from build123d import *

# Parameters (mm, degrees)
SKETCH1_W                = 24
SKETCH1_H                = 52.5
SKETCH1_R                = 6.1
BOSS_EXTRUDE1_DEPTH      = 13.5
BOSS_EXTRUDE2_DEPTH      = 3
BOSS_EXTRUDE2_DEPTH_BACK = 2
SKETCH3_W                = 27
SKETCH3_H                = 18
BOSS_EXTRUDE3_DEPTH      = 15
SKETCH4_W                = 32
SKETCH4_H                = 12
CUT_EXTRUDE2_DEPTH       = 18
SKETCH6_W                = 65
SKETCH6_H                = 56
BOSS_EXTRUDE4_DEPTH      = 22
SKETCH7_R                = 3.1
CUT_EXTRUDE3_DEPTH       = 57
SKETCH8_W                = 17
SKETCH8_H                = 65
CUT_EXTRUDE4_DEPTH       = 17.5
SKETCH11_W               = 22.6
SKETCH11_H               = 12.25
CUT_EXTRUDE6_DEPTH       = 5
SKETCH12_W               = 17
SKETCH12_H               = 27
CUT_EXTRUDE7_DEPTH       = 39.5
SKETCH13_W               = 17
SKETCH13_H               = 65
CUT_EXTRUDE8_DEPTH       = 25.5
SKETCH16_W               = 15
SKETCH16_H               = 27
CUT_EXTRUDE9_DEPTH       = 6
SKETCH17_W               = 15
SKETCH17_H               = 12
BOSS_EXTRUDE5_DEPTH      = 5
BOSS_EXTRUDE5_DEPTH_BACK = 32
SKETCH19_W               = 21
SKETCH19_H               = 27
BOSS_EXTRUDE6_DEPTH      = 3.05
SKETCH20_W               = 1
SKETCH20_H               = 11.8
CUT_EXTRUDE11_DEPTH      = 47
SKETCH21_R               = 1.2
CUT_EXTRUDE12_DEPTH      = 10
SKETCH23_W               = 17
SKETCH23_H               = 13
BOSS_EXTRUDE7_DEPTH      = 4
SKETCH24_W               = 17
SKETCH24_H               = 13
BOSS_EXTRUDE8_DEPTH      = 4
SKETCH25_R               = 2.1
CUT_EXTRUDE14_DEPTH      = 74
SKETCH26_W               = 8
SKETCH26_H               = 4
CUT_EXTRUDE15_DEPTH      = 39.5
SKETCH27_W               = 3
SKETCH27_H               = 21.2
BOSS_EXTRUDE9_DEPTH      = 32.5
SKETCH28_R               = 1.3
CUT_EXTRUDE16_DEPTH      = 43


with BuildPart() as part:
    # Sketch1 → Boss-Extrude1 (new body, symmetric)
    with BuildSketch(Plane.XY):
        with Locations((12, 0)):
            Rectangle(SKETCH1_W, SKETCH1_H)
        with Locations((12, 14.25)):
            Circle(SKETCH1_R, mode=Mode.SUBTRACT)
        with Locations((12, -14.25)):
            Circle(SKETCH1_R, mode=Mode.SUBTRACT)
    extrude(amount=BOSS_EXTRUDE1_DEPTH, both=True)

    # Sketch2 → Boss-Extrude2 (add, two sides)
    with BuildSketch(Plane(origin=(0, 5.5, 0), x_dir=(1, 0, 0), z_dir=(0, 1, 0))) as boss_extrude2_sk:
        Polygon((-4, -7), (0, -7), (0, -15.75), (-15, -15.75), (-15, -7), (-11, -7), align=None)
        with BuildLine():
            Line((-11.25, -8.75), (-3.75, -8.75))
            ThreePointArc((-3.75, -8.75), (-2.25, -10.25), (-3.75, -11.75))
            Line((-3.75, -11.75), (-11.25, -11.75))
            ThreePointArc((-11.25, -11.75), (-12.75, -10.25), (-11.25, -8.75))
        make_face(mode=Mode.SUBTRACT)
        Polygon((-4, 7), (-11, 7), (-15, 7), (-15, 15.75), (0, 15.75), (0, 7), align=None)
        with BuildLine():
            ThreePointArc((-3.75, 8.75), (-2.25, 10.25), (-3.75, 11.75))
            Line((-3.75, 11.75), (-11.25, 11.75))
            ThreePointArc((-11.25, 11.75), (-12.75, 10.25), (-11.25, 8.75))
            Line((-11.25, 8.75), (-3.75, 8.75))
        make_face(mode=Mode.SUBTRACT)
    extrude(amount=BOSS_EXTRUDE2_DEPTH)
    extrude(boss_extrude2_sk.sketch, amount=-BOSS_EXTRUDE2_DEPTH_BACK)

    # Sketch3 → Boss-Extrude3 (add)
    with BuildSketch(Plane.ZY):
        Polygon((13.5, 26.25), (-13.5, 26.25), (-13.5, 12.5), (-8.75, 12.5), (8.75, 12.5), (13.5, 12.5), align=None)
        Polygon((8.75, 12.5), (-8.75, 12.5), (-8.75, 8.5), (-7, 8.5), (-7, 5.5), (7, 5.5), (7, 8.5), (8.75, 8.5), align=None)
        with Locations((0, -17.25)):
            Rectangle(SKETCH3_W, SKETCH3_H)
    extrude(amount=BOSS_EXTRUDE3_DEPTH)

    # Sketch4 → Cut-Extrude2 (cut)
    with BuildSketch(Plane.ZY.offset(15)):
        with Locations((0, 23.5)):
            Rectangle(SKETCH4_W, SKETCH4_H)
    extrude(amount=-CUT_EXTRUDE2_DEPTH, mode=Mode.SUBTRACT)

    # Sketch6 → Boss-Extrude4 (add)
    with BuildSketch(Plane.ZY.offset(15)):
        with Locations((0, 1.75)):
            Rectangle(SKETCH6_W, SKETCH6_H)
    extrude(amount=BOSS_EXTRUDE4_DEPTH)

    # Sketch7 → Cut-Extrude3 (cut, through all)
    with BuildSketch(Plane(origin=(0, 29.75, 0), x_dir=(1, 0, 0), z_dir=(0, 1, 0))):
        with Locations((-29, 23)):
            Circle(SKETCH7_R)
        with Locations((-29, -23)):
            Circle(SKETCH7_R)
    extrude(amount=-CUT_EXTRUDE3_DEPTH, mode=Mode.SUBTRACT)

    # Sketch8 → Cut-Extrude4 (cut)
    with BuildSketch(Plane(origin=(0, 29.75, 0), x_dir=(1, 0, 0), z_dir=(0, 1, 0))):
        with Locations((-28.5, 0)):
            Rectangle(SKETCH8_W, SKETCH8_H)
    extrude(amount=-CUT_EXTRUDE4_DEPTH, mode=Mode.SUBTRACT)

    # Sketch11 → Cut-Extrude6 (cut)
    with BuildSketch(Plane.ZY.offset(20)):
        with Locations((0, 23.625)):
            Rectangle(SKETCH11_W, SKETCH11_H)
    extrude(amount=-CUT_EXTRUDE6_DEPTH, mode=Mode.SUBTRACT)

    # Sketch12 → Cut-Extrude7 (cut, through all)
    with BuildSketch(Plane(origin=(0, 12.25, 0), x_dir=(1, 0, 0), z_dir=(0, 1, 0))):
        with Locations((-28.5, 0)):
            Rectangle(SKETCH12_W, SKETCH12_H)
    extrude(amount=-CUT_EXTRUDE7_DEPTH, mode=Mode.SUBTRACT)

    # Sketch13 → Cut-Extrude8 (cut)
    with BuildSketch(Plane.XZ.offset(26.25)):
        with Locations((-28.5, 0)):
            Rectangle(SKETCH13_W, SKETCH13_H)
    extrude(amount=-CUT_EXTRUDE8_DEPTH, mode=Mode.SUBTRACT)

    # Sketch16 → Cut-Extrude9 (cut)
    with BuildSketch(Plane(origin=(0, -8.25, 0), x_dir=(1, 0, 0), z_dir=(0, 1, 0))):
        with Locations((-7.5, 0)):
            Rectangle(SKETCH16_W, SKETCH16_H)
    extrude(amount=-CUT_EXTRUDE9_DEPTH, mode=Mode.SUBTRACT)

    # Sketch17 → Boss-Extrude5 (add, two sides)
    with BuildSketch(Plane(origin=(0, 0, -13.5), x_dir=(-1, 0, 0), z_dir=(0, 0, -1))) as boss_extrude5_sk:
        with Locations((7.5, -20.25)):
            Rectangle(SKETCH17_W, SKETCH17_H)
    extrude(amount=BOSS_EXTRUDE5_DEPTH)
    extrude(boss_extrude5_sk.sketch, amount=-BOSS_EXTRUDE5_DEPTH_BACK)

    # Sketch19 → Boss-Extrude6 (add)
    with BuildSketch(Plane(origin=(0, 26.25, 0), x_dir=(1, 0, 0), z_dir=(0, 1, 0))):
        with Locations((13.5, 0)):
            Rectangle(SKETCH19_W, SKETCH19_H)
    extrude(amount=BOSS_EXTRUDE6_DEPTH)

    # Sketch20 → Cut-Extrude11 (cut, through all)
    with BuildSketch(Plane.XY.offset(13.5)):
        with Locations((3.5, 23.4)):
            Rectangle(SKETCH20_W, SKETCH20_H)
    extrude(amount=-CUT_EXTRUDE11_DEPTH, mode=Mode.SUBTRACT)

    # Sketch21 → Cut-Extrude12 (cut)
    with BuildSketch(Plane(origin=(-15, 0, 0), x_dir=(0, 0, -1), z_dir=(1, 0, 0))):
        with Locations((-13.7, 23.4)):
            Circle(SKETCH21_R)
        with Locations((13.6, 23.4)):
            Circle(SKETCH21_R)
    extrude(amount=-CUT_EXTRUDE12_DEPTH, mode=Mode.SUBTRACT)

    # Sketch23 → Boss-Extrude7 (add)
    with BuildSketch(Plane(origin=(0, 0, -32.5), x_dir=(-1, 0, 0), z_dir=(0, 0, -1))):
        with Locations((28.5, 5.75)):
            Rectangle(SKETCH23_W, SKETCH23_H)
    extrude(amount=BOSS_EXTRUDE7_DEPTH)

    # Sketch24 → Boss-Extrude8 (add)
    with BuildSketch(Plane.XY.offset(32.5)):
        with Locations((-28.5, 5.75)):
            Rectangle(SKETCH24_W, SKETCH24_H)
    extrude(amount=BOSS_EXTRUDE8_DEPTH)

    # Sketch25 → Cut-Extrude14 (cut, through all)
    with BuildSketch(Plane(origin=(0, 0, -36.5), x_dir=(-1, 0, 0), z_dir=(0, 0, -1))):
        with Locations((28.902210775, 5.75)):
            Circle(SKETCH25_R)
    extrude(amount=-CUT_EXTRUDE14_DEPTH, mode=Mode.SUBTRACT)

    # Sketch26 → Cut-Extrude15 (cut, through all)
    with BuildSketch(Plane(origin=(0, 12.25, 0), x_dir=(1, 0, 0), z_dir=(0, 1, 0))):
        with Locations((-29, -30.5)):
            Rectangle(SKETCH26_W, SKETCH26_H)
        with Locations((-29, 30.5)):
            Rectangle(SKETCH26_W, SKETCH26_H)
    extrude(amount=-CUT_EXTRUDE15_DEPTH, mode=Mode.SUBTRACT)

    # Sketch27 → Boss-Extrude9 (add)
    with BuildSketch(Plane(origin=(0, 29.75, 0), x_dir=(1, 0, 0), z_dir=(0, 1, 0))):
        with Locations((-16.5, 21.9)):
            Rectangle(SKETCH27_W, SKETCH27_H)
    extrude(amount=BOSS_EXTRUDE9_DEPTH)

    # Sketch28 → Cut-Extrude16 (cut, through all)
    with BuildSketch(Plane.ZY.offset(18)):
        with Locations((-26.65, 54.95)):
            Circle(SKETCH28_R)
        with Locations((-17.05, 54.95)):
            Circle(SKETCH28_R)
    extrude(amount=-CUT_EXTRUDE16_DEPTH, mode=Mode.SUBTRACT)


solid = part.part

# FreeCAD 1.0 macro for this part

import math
import FreeCAD as App
import Part
import Sketcher

V = App.Vector
Q = App.Units.Quantity


def add_polygon(sketch, points):
    """Adds a closed chain of lines whose ends are joined by coincident constraints."""
    first, n = sketch.GeometryCount, len(points)
    for a, b in zip(points, points[1:] + points[:1]):
        sketch.addGeometry(Part.LineSegment(App.Vector(*a, 0), App.Vector(*b, 0)), False)
    for i in range(n):
        sketch.addConstraint(Sketcher.Constraint("Coincident", first + i, 2, first + (i + 1) % n, 1))

doc = App.newDocument("Part")
body = doc.addObject("PartDesign::Body", "Body")

# Sketch on XY plane
sketch1 = body.newObject("Sketcher::SketchObject", "Sketch")
sketch1.AttachmentSupport = (doc.getObject("XY_Plane"), [""])
sketch1.MapMode = "FlatFace"
add_polygon(sketch1, [(0, 26), (0, -26), (24, -26), (24, 26)])  # lines 0-3
sketch1.addGeometry(Part.Circle(V(12, -14, 0), V(0, 0, 1), 6), False)  # 4
sketch1.addGeometry(Part.Circle(V(12, 14, 0), V(0, 0, 1), 6), False)  # 5
sketch1.addConstraint([
    Sketcher.Constraint("Vertical", 0),
    Sketcher.Constraint("Horizontal", 1),
    Sketcher.Constraint("Vertical", 2),
    Sketcher.Constraint("Horizontal", 3),
    Sketcher.Constraint("Equal", 4, 5),
    Sketcher.Constraint("Symmetric", 0, 2, 3, 2, -1, 1),
    Sketcher.Constraint("Symmetric", 4, 3, 5, 3, -1),
    Sketcher.Constraint("Diameter", 4, Q("12.2 mm")),
    Sketcher.Constraint("DistanceX", 1, 1, 1, 2, Q("24 mm")),
    Sketcher.Constraint("DistanceY", 0, 2, 0, 1, Q("52.5 mm")),
    Sketcher.Constraint("DistanceX", -1, 1, 4, 3, Q("12 mm")),
    Sketcher.Constraint("DistanceY", 0, 2, 4, 3, Q("12 mm")),
])
pad1 = body.newObject("PartDesign::Pad", "Pad")
pad1.Profile = sketch1
pad1.Length = 27
pad1.Midplane = True

# Sketch on XZ plane
sketch2 = body.newObject("Sketcher::SketchObject", "Sketch001")
sketch2.AttachmentSupport = (doc.getObject("XZ_Plane"), [""])
sketch2.MapMode = "FlatFace"
sketch2.AttachmentOffset = App.Placement(V(0, 0, -5.5), App.Rotation())
add_polygon(sketch2, [(0, 7), (-15, 7), (-15, 15.8), (0, 15.8)])  # lines 0-3
sketch2.addGeometry(Part.LineSegment(V(-11.2, 8.8, 0), V(-3.8, 8.8, 0)), False)  # 4
sketch2.addGeometry(Part.ArcOfCircle(Part.Circle(V(-3.8, 10.2, 0), V(0, 0, 1), 1.5), math.radians(-90), math.radians(90)), False)  # 5
sketch2.addGeometry(Part.LineSegment(V(-3.8, 11.8, 0), V(-11.2, 11.8, 0)), False)  # 6
sketch2.addGeometry(Part.ArcOfCircle(Part.Circle(V(-11.2, 10.2, 0), V(0, 0, 1), 1.5), math.radians(90), math.radians(270)), False)  # 7
add_polygon(sketch2, [(-15, -7), (0, -7), (0, -15.8), (-15, -15.8)])  # lines 8-11
sketch2.addGeometry(Part.LineSegment(V(-3.8, -8.8, 0), V(-11.2, -8.8, 0)), False)  # 12
sketch2.addGeometry(Part.ArcOfCircle(Part.Circle(V(-11.2, -10.2, 0), V(0, 0, 1), 1.5), math.radians(90), math.radians(270)), False)  # 13
sketch2.addGeometry(Part.LineSegment(V(-11.2, -11.8, 0), V(-3.8, -11.8, 0)), False)  # 14
sketch2.addGeometry(Part.ArcOfCircle(Part.Circle(V(-3.8, -10.2, 0), V(0, 0, 1), 1.5), math.radians(-90), math.radians(90)), False)  # 15
sketch2.addConstraint([
    Sketcher.Constraint("Tangent", 4, 2, 5, 1),
    Sketcher.Constraint("Tangent", 5, 2, 6, 1),
    Sketcher.Constraint("Tangent", 6, 2, 7, 1),
    Sketcher.Constraint("Tangent", 7, 2, 4, 1),
    Sketcher.Constraint("Tangent", 12, 2, 13, 1),
    Sketcher.Constraint("Tangent", 13, 2, 14, 1),
    Sketcher.Constraint("Tangent", 14, 2, 15, 1),
    Sketcher.Constraint("Tangent", 15, 2, 12, 1),
    Sketcher.Constraint("Horizontal", 0),
    Sketcher.Constraint("Vertical", 1),
    Sketcher.Constraint("Horizontal", 2),
    Sketcher.Constraint("Vertical", 3),
    Sketcher.Constraint("Horizontal", 4),
    Sketcher.Constraint("Horizontal", 6),
    Sketcher.Constraint("Horizontal", 8),
    Sketcher.Constraint("Vertical", 9),
    Sketcher.Constraint("Horizontal", 10),
    Sketcher.Constraint("Vertical", 11),
    Sketcher.Constraint("Horizontal", 12),
    Sketcher.Constraint("Horizontal", 14),
    Sketcher.Constraint("Equal", 7, 13),
    Sketcher.Constraint("Symmetric", 3, 2, 8, 2, -1, 1),
    Sketcher.Constraint("Symmetric", 7, 3, 13, 3, -1),
    Sketcher.Constraint("Symmetric", 2, 2, 9, 2, -1),
    Sketcher.Constraint("Vertical", 5, 3, 15, 3),
    Sketcher.Constraint("Vertical", 1, 2, 10, 2),
    Sketcher.Constraint("Radius", 5, Q("1.5 mm")),
    Sketcher.Constraint("DistanceX", 0, 2, 0, 1, Q("15 mm")),
    Sketcher.Constraint("DistanceX", 4, 1, 4, 2, Q("7.5 mm")),
    Sketcher.Constraint("DistanceY", -1, 1, 0, 2, Q("7 mm")),
    Sketcher.Constraint("DistanceY", 13, 3, 1, 2, Q("26 mm")),
    Sketcher.Constraint("DistanceY", 4, 2, 2, 2, Q("7 mm")),
    Sketcher.Constraint("DistanceX", 5, 3, -1, 1, Q("3.75 mm")),
])
pad2 = body.newObject("PartDesign::Pad", "Pad001")
pad2.Profile = sketch2
pad2.Type = "TwoLengths"
pad2.Length = 3
pad2.Length2 = 2
pad2.Reversed = True

# Sketch on YZ plane
sketch3 = body.newObject("Sketcher::SketchObject", "Sketch002")
sketch3.AttachmentSupport = (doc.getObject("YZ_Plane"), [""])
sketch3.MapMode = "FlatFace"
add_polygon(sketch3, [(26.2, 13.5), (26.2, -13.5), (12.5, -13.5), (12.5, -8.8), (8.5, -8.8), (8.5, -7), (5.5, -7), (5.5, 7), (8.5, 7), (8.5, 8.8), (12.5, 8.8), (12.5, 13.5)])  # lines 0-11
add_polygon(sketch3, [(-8.2, -13.5), (-26.2, -13.5), (-26.2, 13.5), (-8.2, 13.5)])  # lines 12-15
sketch3.addConstraint([
    Sketcher.Constraint("Vertical", 0),
    Sketcher.Constraint("Horizontal", 1),
    Sketcher.Constraint("Vertical", 2),
    Sketcher.Constraint("Horizontal", 3),
    Sketcher.Constraint("Vertical", 4),
    Sketcher.Constraint("Horizontal", 5),
    Sketcher.Constraint("Vertical", 6),
    Sketcher.Constraint("Horizontal", 7),
    Sketcher.Constraint("Vertical", 8),
    Sketcher.Constraint("Horizontal", 9),
    Sketcher.Constraint("Vertical", 10),
    Sketcher.Constraint("Horizontal", 11),
    Sketcher.Constraint("Horizontal", 12),
    Sketcher.Constraint("Vertical", 13),
    Sketcher.Constraint("Horizontal", 14),
    Sketcher.Constraint("Vertical", 15),
    Sketcher.Constraint("Symmetric", 11, 2, 12, 2, -1, 1),
    Sketcher.Constraint("Symmetric", 4, 2, 7, 2, -1),
    Sketcher.Constraint("Symmetric", 2, 2, 9, 2, -1),
    Sketcher.Constraint("Horizontal", 1, 2, 12, 2),
    Sketcher.Constraint("Horizontal", 11, 2, 13, 2),
    Sketcher.Constraint("DistanceX", 3, 2, 3, 1, Q("4 mm")),
    Sketcher.Constraint("DistanceX", 5, 2, 5, 1, Q("3 mm")),
    Sketcher.Constraint("DistanceX", 12, 2, 12, 1, Q("18 mm")),
    Sketcher.Constraint("DistanceY", 0, 2, 0, 1, Q("27 mm")),
    Sketcher.Constraint("DistanceY", 6, 1, 6, 2, Q("14 mm")),
    Sketcher.Constraint("DistanceX", 1, 2, 1, 1, Q("13.75 mm")),
    Sketcher.Constraint("DistanceY", 2, 1, 2, 2, Q("4.75 mm")),
    Sketcher.Constraint("DistanceX", -1, 1, 1, 2, Q("12.5 mm")),
])
pad3 = body.newObject("PartDesign::Pad", "Pad002")
pad3.Profile = sketch3
pad3.Length = 15
pad3.Reversed = True

# Sketch on YZ plane
sketch4 = body.newObject("Sketcher::SketchObject", "Sketch003")
sketch4.AttachmentSupport = (doc.getObject("YZ_Plane"), [""])
sketch4.MapMode = "FlatFace"
sketch4.AttachmentOffset = App.Placement(V(0, 0, -15), App.Rotation())
add_polygon(sketch4, [(30, -16), (18, -16), (18, 16), (30, 16)])  # lines 0-3
sketch4.addConstraint([
    Sketcher.Constraint("Horizontal", 0),
    Sketcher.Constraint("Vertical", 1),
    Sketcher.Constraint("Horizontal", 2),
    Sketcher.Constraint("Vertical", 3),
    Sketcher.Constraint("DistanceX", 0, 2, 0, 1, Q("12 mm")),
    Sketcher.Constraint("DistanceY", 1, 1, 1, 2, Q("32 mm")),
    Sketcher.Constraint("DistanceY", 0, 2, -1, 1, Q("16 mm")),
    Sketcher.Constraint("DistanceX", -1, 1, 0, 2, Q("17.5 mm")),
])
pocket1 = body.newObject("PartDesign::Pocket", "Pocket")
pocket1.Profile = sketch4
pocket1.Length = 18
pocket1.Reversed = True

# Sketch on YZ plane
sketch5 = body.newObject("Sketcher::SketchObject", "Sketch004")
sketch5.AttachmentSupport = (doc.getObject("YZ_Plane"), [""])
sketch5.MapMode = "FlatFace"
sketch5.AttachmentOffset = App.Placement(V(0, 0, -15), App.Rotation())
add_polygon(sketch5, [(30, -32), (-26, -32), (-26, 32), (30, 32)])  # lines 0-3
sketch5.addConstraint([
    Sketcher.Constraint("Horizontal", 0),
    Sketcher.Constraint("Vertical", 1),
    Sketcher.Constraint("Horizontal", 2),
    Sketcher.Constraint("Vertical", 3),
    Sketcher.Constraint("DistanceX", 0, 2, 0, 1, Q("56 mm")),
    Sketcher.Constraint("DistanceY", 1, 1, 1, 2, Q("65 mm")),
    Sketcher.Constraint("DistanceY", 0, 2, -1, 1, Q("32.5 mm")),
    Sketcher.Constraint("DistanceX", 0, 2, -1, 1, Q("26.25 mm")),
])
pad4 = body.newObject("PartDesign::Pad", "Pad003")
pad4.Profile = sketch5
pad4.Length = 22
pad4.Reversed = True

# Sketch on XZ plane
sketch6 = body.newObject("Sketcher::SketchObject", "Sketch005")
sketch6.AttachmentSupport = (doc.getObject("XZ_Plane"), [""])
sketch6.MapMode = "FlatFace"
sketch6.AttachmentOffset = App.Placement(V(0, 0, -29.75), App.Rotation())
sketch6.addGeometry([
    Part.Circle(V(-29, -23, 0), V(0, 0, 1), 3.1),
    Part.Circle(V(-29, 23, 0), V(0, 0, 1), 3.1),
], False)
sketch6.addConstraint([
    Sketcher.Constraint("Equal", 0, 1),
    Sketcher.Constraint("Symmetric", 0, 3, 1, 3, -1),
    Sketcher.Constraint("Diameter", 0, Q("6.2 mm")),
    Sketcher.Constraint("DistanceX", 0, 3, -1, 1, Q("29 mm")),
    Sketcher.Constraint("DistanceY", 0, 3, -1, 1, Q("23 mm")),
])
pocket2 = body.newObject("PartDesign::Pocket", "Pocket001")
pocket2.Profile = sketch6
pocket2.Type = "ThroughAll"
pocket2.Reversed = True

# Sketch on XZ plane
sketch7 = body.newObject("Sketcher::SketchObject", "Sketch006")
sketch7.AttachmentSupport = (doc.getObject("XZ_Plane"), [""])
sketch7.MapMode = "FlatFace"
sketch7.AttachmentOffset = App.Placement(V(0, 0, -29.75), App.Rotation())
add_polygon(sketch7, [(-37, -32), (-37, 32), (-20, 32), (-20, -32)])  # lines 0-3
sketch7.addConstraint([
    Sketcher.Constraint("Vertical", 0),
    Sketcher.Constraint("Horizontal", 1),
    Sketcher.Constraint("Vertical", 2),
    Sketcher.Constraint("Horizontal", 3),
    Sketcher.Constraint("DistanceX", 1, 1, 1, 2, Q("17 mm")),
    Sketcher.Constraint("DistanceY", 0, 1, 0, 2, Q("65 mm")),
    Sketcher.Constraint("DistanceX", 0, 2, -1, 1, Q("37 mm")),
    Sketcher.Constraint("DistanceY", -1, 1, 0, 2, Q("32.5 mm")),
])
pocket3 = body.newObject("PartDesign::Pocket", "Pocket002")
pocket3.Profile = sketch7
pocket3.Length = 17.5
pocket3.Reversed = True

# Sketch on YZ plane
sketch8 = body.newObject("Sketcher::SketchObject", "Sketch007")
sketch8.AttachmentSupport = (doc.getObject("YZ_Plane"), [""])
sketch8.MapMode = "FlatFace"
sketch8.AttachmentOffset = App.Placement(V(0, 0, -20), App.Rotation())
add_polygon(sketch8, [(30, -11), (18, -11), (18, 11), (30, 11)])  # lines 0-3
sketch8.addConstraint([
    Sketcher.Constraint("Horizontal", 0),
    Sketcher.Constraint("Vertical", 1),
    Sketcher.Constraint("Horizontal", 2),
    Sketcher.Constraint("Vertical", 3),
    Sketcher.Constraint("DistanceY", 1, 1, 1, 2, Q("22.6 mm")),
    Sketcher.Constraint("DistanceX", 0, 2, 0, 1, Q("12.25 mm")),
    Sketcher.Constraint("DistanceX", -1, 1, 0, 2, Q("17.5 mm")),
    Sketcher.Constraint("DistanceY", 0, 2, -1, 1, Q("11.3 mm")),
])
pocket4 = body.newObject("PartDesign::Pocket", "Pocket003")
pocket4.Profile = sketch8
pocket4.Length = 5
pocket4.Reversed = True

# Sketch on XZ plane
sketch9 = body.newObject("Sketcher::SketchObject", "Sketch008")
sketch9.AttachmentSupport = (doc.getObject("XZ_Plane"), [""])
sketch9.MapMode = "FlatFace"
sketch9.AttachmentOffset = App.Placement(V(0, 0, -12.25), App.Rotation())
add_polygon(sketch9, [(-37, -14), (-37, 14), (-20, 14), (-20, -14)])  # lines 0-3
sketch9.addConstraint([
    Sketcher.Constraint("Vertical", 0),
    Sketcher.Constraint("Horizontal", 1),
    Sketcher.Constraint("Vertical", 2),
    Sketcher.Constraint("Horizontal", 3),
    Sketcher.Constraint("DistanceX", 1, 1, 1, 2, Q("17 mm")),
    Sketcher.Constraint("DistanceY", 0, 1, 0, 2, Q("27 mm")),
    Sketcher.Constraint("DistanceX", 0, 2, -1, 1, Q("37 mm")),
    Sketcher.Constraint("DistanceY", -1, 1, 0, 2, Q("13.5 mm")),
])
pocket5 = body.newObject("PartDesign::Pocket", "Pocket004")
pocket5.Profile = sketch9
pocket5.Type = "ThroughAll"
pocket5.Reversed = True

# Sketch on XZ plane
sketch10 = body.newObject("Sketcher::SketchObject", "Sketch009")
sketch10.AttachmentSupport = (doc.getObject("XZ_Plane"), [""])
sketch10.MapMode = "FlatFace"
sketch10.AttachmentOffset = App.Placement(V(0, 0, 26.25), App.Rotation())
add_polygon(sketch10, [(-37, 32), (-37, -32), (-20, -32), (-20, 32)])  # lines 0-3
sketch10.addConstraint([
    Sketcher.Constraint("Vertical", 0),
    Sketcher.Constraint("Horizontal", 1),
    Sketcher.Constraint("Vertical", 2),
    Sketcher.Constraint("Horizontal", 3),
    Sketcher.Constraint("DistanceX", 1, 1, 1, 2, Q("17 mm")),
    Sketcher.Constraint("DistanceY", 0, 2, 0, 1, Q("65 mm")),
    Sketcher.Constraint("DistanceX", 0, 2, -1, 1, Q("37 mm")),
    Sketcher.Constraint("DistanceY", 0, 2, -1, 1, Q("32.5 mm")),
])
pocket6 = body.newObject("PartDesign::Pocket", "Pocket005")
pocket6.Profile = sketch10
pocket6.Length = 25.5

# Sketch on XZ plane
sketch11 = body.newObject("Sketcher::SketchObject", "Sketch010")
sketch11.AttachmentSupport = (doc.getObject("XZ_Plane"), [""])
sketch11.MapMode = "FlatFace"
sketch11.AttachmentOffset = App.Placement(V(0, 0, 8.25), App.Rotation())
add_polygon(sketch11, [(-15, -14), (-15, 14), (0, 14), (0, -14)])  # lines 0-3
sketch11.addConstraint([
    Sketcher.Constraint("Vertical", 0),
    Sketcher.Constraint("Horizontal", 1),
    Sketcher.Constraint("Vertical", 2),
    Sketcher.Constraint("Horizontal", 3),
    Sketcher.Constraint("Symmetric", 1, 2, 2, 2, -1, 1),
    Sketcher.Constraint("DistanceX", 1, 1, 1, 2, Q("15 mm")),
    Sketcher.Constraint("DistanceY", 0, 1, 0, 2, Q("27 mm")),
])
pocket7 = body.newObject("PartDesign::Pocket", "Pocket006")
pocket7.Profile = sketch11
pocket7.Length = 6
pocket7.Reversed = True

# Sketch on XY plane
sketch12 = body.newObject("Sketcher::SketchObject", "Sketch011")
sketch12.AttachmentSupport = (doc.getObject("XY_Plane"), [""])
sketch12.MapMode = "FlatFace"
sketch12.AttachmentOffset = App.Placement(V(0, 0, -13.5), App.Rotation())
add_polygon(sketch12, [(0, -14), (0, -26), (-15, -26), (-15, -14)])  # lines 0-3
sketch12.addConstraint([
    Sketcher.Constraint("Vertical", 0),
    Sketcher.Constraint("Horizontal", 1),
    Sketcher.Constraint("Vertical", 2),
    Sketcher.Constraint("Horizontal", 3),
    Sketcher.Constraint("PointOnObject", 0, 2, -2),
    Sketcher.Constraint("DistanceX", 1, 2, 1, 1, Q("15 mm")),
    Sketcher.Constraint("DistanceY", 0, 2, 0, 1, Q("12 mm")),
    Sketcher.Constraint("DistanceY", 0, 2, -1, 1, Q("26.25 mm")),
])
pad5 = body.newObject("PartDesign::Pad", "Pad004")
pad5.Profile = sketch12
pad5.Type = "TwoLengths"
pad5.Length = 5
pad5.Length2 = 32
pad5.Reversed = True

# Sketch on XZ plane
sketch13 = body.newObject("Sketcher::SketchObject", "Sketch012")
sketch13.AttachmentSupport = (doc.getObject("XZ_Plane"), [""])
sketch13.MapMode = "FlatFace"
sketch13.AttachmentOffset = App.Placement(V(0, 0, -26.25), App.Rotation())
add_polygon(sketch13, [(3, -14), (3, 14), (24, 14), (24, -14)])  # lines 0-3
sketch13.addConstraint([
    Sketcher.Constraint("Vertical", 0),
    Sketcher.Constraint("Horizontal", 1),
    Sketcher.Constraint("Vertical", 2),
    Sketcher.Constraint("Horizontal", 3),
    Sketcher.Constraint("DistanceX", 1, 1, 1, 2, Q("21 mm")),
    Sketcher.Constraint("DistanceY", 0, 1, 0, 2, Q("27 mm")),
    Sketcher.Constraint("DistanceX", -1, 1, 0, 2, Q("3 mm")),
    Sketcher.Constraint("DistanceY", -1, 1, 0, 2, Q("13.5 mm")),
])
pad6 = body.newObject("PartDesign::Pad", "Pad005")
pad6.Profile = sketch13
pad6.Length = 3.05
pad6.Reversed = True

# Sketch on XY plane
sketch14 = body.newObject("Sketcher::SketchObject", "Sketch013")
sketch14.AttachmentSupport = (doc.getObject("XY_Plane"), [""])
sketch14.MapMode = "FlatFace"
sketch14.AttachmentOffset = App.Placement(V(0, 0, 13.5), App.Rotation())
add_polygon(sketch14, [(3, 29.3), (3, 17.5), (4, 17.5), (4, 29.3)])  # lines 0-3
sketch14.addConstraint([
    Sketcher.Constraint("Vertical", 0),
    Sketcher.Constraint("Horizontal", 1),
    Sketcher.Constraint("Vertical", 2),
    Sketcher.Constraint("Horizontal", 3),
    Sketcher.Constraint("DistanceX", 1, 1, 1, 2, Q("1 mm")),
    Sketcher.Constraint("DistanceY", 0, 2, 0, 1, Q("11.8 mm")),
    Sketcher.Constraint("DistanceX", -1, 1, 0, 2, Q("3 mm")),
    Sketcher.Constraint("DistanceY", -1, 1, 0, 2, Q("17.5 mm")),
])
pocket8 = body.newObject("PartDesign::Pocket", "Pocket007")
pocket8.Profile = sketch14
pocket8.Type = "ThroughAll"

# Sketch on YZ plane
sketch15 = body.newObject("Sketcher::SketchObject", "Sketch014")
sketch15.AttachmentSupport = (doc.getObject("YZ_Plane"), [""])
sketch15.MapMode = "FlatFace"
sketch15.AttachmentOffset = App.Placement(V(0, 0, -15), App.Rotation())
sketch15.addGeometry([
    Part.Circle(V(23.4, 13.7, 0), V(0, 0, 1), 1.2),
    Part.Circle(V(23.4, -13.6, 0), V(0, 0, 1), 1.2),
], False)
sketch15.addConstraint([
    Sketcher.Constraint("Equal", 0, 1),
    Sketcher.Constraint("Vertical", 0, 3, 1, 3),
    Sketcher.Constraint("Diameter", 0, Q("2.4 mm")),
    Sketcher.Constraint("DistanceX", -1, 1, 0, 3, Q("23.4 mm")),
    Sketcher.Constraint("DistanceY", -1, 1, 0, 3, Q("13.7 mm")),
    Sketcher.Constraint("DistanceY", 1, 3, -1, 1, Q("13.6 mm")),
])
pocket9 = body.newObject("PartDesign::Pocket", "Pocket008")
pocket9.Profile = sketch15
pocket9.Length = 10

# Sketch on XY plane
sketch16 = body.newObject("Sketcher::SketchObject", "Sketch015")
sketch16.AttachmentSupport = (doc.getObject("XY_Plane"), [""])
sketch16.MapMode = "FlatFace"
sketch16.AttachmentOffset = App.Placement(V(0, 0, -32.5), App.Rotation())
add_polygon(sketch16, [(-20, 12), (-20, -1), (-37, -1), (-37, 12)])  # lines 0-3
sketch16.addConstraint([
    Sketcher.Constraint("Vertical", 0),
    Sketcher.Constraint("Horizontal", 1),
    Sketcher.Constraint("Vertical", 2),
    Sketcher.Constraint("Horizontal", 3),
    Sketcher.Constraint("DistanceX", 1, 2, 1, 1, Q("17 mm")),
    Sketcher.Constraint("DistanceY", 0, 2, 0, 1, Q("13 mm")),
    Sketcher.Constraint("DistanceX", 0, 2, -1, 1, Q("20 mm")),
    Sketcher.Constraint("DistanceY", 0, 2, -1, 1, Q("0.75 mm")),
])
pad7 = body.newObject("PartDesign::Pad", "Pad006")
pad7.Profile = sketch16
pad7.Length = 4
pad7.Reversed = True

# Sketch on XY plane
sketch17 = body.newObject("Sketcher::SketchObject", "Sketch016")
sketch17.AttachmentSupport = (doc.getObject("XY_Plane"), [""])
sketch17.MapMode = "FlatFace"
sketch17.AttachmentOffset = App.Placement(V(0, 0, 32.5), App.Rotation())
add_polygon(sketch17, [(-37, 12), (-37, -1), (-20, -1), (-20, 12)])  # lines 0-3
sketch17.addConstraint([
    Sketcher.Constraint("Vertical", 0),
    Sketcher.Constraint("Horizontal", 1),
    Sketcher.Constraint("Vertical", 2),
    Sketcher.Constraint("Horizontal", 3),
    Sketcher.Constraint("DistanceX", 1, 1, 1, 2, Q("17 mm")),
    Sketcher.Constraint("DistanceY", 0, 2, 0, 1, Q("13 mm")),
    Sketcher.Constraint("DistanceX", 0, 2, -1, 1, Q("37 mm")),
    Sketcher.Constraint("DistanceY", 0, 2, -1, 1, Q("0.75 mm")),
])
pad8 = body.newObject("PartDesign::Pad", "Pad007")
pad8.Profile = sketch17
pad8.Length = 4

# Sketch on XY plane
sketch18 = body.newObject("Sketcher::SketchObject", "Sketch017")
sketch18.AttachmentSupport = (doc.getObject("XY_Plane"), [""])
sketch18.MapMode = "FlatFace"
sketch18.AttachmentOffset = App.Placement(V(0, 0, -36.5), App.Rotation())
sketch18.addGeometry(Part.Circle(V(-28.9, 5.8, 0), V(0, 0, 1), 2.1), False)
sketch18.addConstraint([
    Sketcher.Constraint("Diameter", 0, Q("4.2 mm")),
    Sketcher.Constraint("DistanceY", -1, 1, 0, 3, Q("5.75 mm")),
    Sketcher.Constraint("DistanceX", 0, 3, -1, 1, Q("28.902211 mm")),
])
pocket10 = body.newObject("PartDesign::Pocket", "Pocket009")
pocket10.Profile = sketch18
pocket10.Type = "ThroughAll"
pocket10.Reversed = True

# Sketch on XZ plane
sketch19 = body.newObject("Sketcher::SketchObject", "Sketch018")
sketch19.AttachmentSupport = (doc.getObject("XZ_Plane"), [""])
sketch19.MapMode = "FlatFace"
sketch19.AttachmentOffset = App.Placement(V(0, 0, -12.25), App.Rotation())
add_polygon(sketch19, [(-33, 28.5), (-33, 32.5), (-25, 32.5), (-25, 28.5)])  # lines 0-3
add_polygon(sketch19, [(-33, -32.5), (-33, -28.5), (-25, -28.5), (-25, -32.5)])  # lines 4-7
sketch19.addConstraint([
    Sketcher.Constraint("Vertical", 0),
    Sketcher.Constraint("Horizontal", 1),
    Sketcher.Constraint("Vertical", 2),
    Sketcher.Constraint("Horizontal", 3),
    Sketcher.Constraint("Vertical", 4),
    Sketcher.Constraint("Horizontal", 5),
    Sketcher.Constraint("Vertical", 6),
    Sketcher.Constraint("Horizontal", 7),
    Sketcher.Constraint("Symmetric", 3, 2, 4, 2, -1),
    Sketcher.Constraint("Symmetric", 1, 2, 6, 2, -1),
    Sketcher.Constraint("DistanceX", 1, 1, 1, 2, Q("8 mm")),
    Sketcher.Constraint("DistanceY", 0, 1, 0, 2, Q("4 mm")),
    Sketcher.Constraint("DistanceX", 0, 2, -1, 1, Q("33 mm")),
    Sketcher.Constraint("DistanceY", 4, 2, 3, 2, Q("57 mm")),
])
pocket11 = body.newObject("PartDesign::Pocket", "Pocket010")
pocket11.Profile = sketch19
pocket11.Type = "ThroughAll"
pocket11.Reversed = True

# Sketch on XZ plane
sketch20 = body.newObject("Sketcher::SketchObject", "Sketch019")
sketch20.AttachmentSupport = (doc.getObject("XZ_Plane"), [""])
sketch20.MapMode = "FlatFace"
sketch20.AttachmentOffset = App.Placement(V(0, 0, -29.75), App.Rotation())
add_polygon(sketch20, [(-18, -32.5), (-18, -11.3), (-15, -11.3), (-15, -32.5)])  # lines 0-3
sketch20.addConstraint([
    Sketcher.Constraint("Vertical", 0),
    Sketcher.Constraint("Horizontal", 1),
    Sketcher.Constraint("Vertical", 2),
    Sketcher.Constraint("Horizontal", 3),
    Sketcher.Constraint("DistanceX", 1, 1, 1, 2, Q("3 mm")),
    Sketcher.Constraint("DistanceY", 0, 1, 0, 2, Q("21.2 mm")),
    Sketcher.Constraint("DistanceX", 0, 2, -1, 1, Q("18 mm")),
    Sketcher.Constraint("DistanceY", 0, 2, -1, 1, Q("11.3 mm")),
])
pad9 = body.newObject("PartDesign::Pad", "Pad008")
pad9.Profile = sketch20
pad9.Length = 32.5
pad9.Reversed = True

# Sketch on YZ plane
sketch21 = body.newObject("Sketcher::SketchObject", "Sketch020")
sketch21.AttachmentSupport = (doc.getObject("YZ_Plane"), [""])
sketch21.MapMode = "FlatFace"
sketch21.AttachmentOffset = App.Placement(V(0, 0, -18), App.Rotation())
sketch21.addGeometry([
    Part.Circle(V(55, -26.6, 0), V(0, 0, 1), 1.3),
    Part.Circle(V(55, -17.1, 0), V(0, 0, 1), 1.3),
], False)
sketch21.addConstraint([
    Sketcher.Constraint("Equal", 0, 1),
    Sketcher.Constraint("Vertical", 0, 3, 1, 3),
    Sketcher.Constraint("Diameter", 0, Q("2.6 mm")),
    Sketcher.Constraint("DistanceY", 0, 3, 1, 3, Q("9.6 mm")),
    Sketcher.Constraint("DistanceX", -1, 1, 0, 3, Q("54.95 mm")),
    Sketcher.Constraint("DistanceY", 0, 3, -1, 1, Q("26.65 mm")),
])
pocket12 = body.newObject("PartDesign::Pocket", "Pocket011")
pocket12.Profile = sketch21
pocket12.Type = "ThroughAll"
pocket12.Reversed = True

doc.recompute()
